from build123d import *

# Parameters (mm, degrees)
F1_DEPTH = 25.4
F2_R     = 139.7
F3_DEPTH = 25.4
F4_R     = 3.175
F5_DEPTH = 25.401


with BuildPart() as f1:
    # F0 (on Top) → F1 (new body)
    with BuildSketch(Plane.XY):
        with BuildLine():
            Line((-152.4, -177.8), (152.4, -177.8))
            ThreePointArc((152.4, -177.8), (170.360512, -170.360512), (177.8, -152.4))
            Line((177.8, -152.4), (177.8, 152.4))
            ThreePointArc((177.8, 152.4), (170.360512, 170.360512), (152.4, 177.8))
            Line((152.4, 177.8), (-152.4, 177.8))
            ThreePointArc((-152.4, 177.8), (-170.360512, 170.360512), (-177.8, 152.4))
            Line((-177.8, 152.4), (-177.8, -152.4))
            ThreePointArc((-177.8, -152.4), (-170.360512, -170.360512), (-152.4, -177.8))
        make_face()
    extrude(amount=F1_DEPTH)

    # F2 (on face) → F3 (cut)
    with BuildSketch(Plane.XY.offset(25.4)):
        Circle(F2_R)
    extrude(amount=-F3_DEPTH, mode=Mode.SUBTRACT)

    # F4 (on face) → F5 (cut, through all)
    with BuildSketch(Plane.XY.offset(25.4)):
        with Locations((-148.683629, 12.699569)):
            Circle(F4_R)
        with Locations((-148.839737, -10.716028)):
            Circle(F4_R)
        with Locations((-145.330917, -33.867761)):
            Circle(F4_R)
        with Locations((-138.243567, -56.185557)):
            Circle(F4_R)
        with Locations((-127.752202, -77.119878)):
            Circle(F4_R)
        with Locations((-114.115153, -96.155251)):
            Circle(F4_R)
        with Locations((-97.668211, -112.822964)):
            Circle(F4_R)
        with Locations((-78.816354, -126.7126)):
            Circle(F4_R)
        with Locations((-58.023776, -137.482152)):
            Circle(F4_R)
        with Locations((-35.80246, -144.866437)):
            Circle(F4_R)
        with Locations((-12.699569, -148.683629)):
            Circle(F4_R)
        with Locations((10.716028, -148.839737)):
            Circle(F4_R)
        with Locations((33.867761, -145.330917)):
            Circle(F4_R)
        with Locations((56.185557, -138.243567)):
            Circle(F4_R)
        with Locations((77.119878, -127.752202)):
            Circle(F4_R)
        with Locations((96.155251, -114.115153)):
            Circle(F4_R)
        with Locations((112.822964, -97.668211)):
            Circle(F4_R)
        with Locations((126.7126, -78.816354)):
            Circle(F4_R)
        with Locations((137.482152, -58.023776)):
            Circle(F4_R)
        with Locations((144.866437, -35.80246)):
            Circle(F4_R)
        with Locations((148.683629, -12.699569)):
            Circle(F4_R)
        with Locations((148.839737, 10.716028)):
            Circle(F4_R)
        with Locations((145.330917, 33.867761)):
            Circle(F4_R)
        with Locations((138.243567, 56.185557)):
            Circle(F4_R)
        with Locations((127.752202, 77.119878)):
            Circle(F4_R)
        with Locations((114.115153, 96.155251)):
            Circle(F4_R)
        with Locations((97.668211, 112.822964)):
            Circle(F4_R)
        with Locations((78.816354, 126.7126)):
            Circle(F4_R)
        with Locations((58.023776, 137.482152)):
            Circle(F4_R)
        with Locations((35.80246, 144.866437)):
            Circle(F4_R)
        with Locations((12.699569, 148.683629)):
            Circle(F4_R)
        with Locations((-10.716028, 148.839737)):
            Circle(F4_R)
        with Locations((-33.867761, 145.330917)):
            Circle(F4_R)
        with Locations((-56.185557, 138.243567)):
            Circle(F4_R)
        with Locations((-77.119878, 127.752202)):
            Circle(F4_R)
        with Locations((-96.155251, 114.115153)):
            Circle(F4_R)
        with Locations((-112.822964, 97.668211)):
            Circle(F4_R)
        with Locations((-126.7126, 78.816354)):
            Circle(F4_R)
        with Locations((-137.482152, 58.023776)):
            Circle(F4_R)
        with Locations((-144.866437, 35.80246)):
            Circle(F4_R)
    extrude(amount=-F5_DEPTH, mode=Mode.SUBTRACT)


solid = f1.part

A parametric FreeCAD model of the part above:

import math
import FreeCAD as App
import Part
import Sketcher
Q = App.Units.Quantity

doc = App.newDocument("Part")
params = doc.addObject("Spreadsheet::Sheet", "Params")
for row, (alias, value) in enumerate([
    ("sketch1_radius", "1 in"),
    ("sketch1_width", "12 in"),
    ("pad1_length", "1 in"),
    ("sketch2_diameter", "11 in"),
    ("pocket1_length", "1 in"),
    ("sketch3_diameter", "0.25 in"),
], start=1):
    params.set(f"A{row}", alias)
    params.set(f"B{row}", "=" + value)
    params.setAlias(f"B{row}", alias)

body = doc.addObject("PartDesign::Body", "Body")

# Sketch on XY plane
sketch1 = body.newObject("Sketcher::SketchObject", "Sketch")
sketch1.AttachmentSupport = (doc.getObject("XY_Plane"), [""])
sketch1.MapMode = "FlatFace"
sketch1.addGeometry([
    Part.LineSegment(App.Vector(-152, -178, 0), App.Vector(152, -178, 0)),  # 0
    Part.ArcOfCircle(Part.Circle(App.Vector(152, -152, 0), App.Vector(0, 0, 1), 25), math.radians(-90), math.radians(0)),  # 1
    Part.LineSegment(App.Vector(178, -152, 0), App.Vector(178, 152, 0)),  # 2
    Part.ArcOfCircle(Part.Circle(App.Vector(152, 152, 0), App.Vector(0, 0, 1), 25), math.radians(0), math.radians(90)),  # 3
    Part.LineSegment(App.Vector(152, 178, 0), App.Vector(-152, 178, 0)),  # 4
    Part.ArcOfCircle(Part.Circle(App.Vector(-152, 152, 0), App.Vector(0, 0, 1), 25), math.radians(90), math.radians(180)),  # 5
    Part.LineSegment(App.Vector(-178, 152, 0), App.Vector(-178, -152, 0)),  # 6
    Part.ArcOfCircle(Part.Circle(App.Vector(-152, -152, 0), App.Vector(0, 0, 1), 25), math.radians(-180), math.radians(-90)),  # 7
], False)
sketch1.addConstraint([
    Sketcher.Constraint("Tangent", 0, 2, 1, 1),
    Sketcher.Constraint("Tangent", 1, 2, 2, 1),
    Sketcher.Constraint("Tangent", 2, 2, 3, 1),
    Sketcher.Constraint("Tangent", 3, 2, 4, 1),
    Sketcher.Constraint("Tangent", 4, 2, 5, 1),
    Sketcher.Constraint("Tangent", 5, 2, 6, 1),
    Sketcher.Constraint("Tangent", 6, 2, 7, 1),
    Sketcher.Constraint("Tangent", 7, 2, 0, 1),
    Sketcher.Constraint("Horizontal", 0),
    Sketcher.Constraint("Vertical", 2),
    Sketcher.Constraint("Horizontal", 4),
    Sketcher.Constraint("Vertical", 6),
    Sketcher.Constraint("Equal", 1, 3),
    Sketcher.Constraint("Equal", 3, 5),
    Sketcher.Constraint("Equal", 5, 7),
    Sketcher.Constraint("Symmetric", 1, 3, 5, 3, -1, 1),
    Sketcher.Constraint("Equal", 4, 2),
    Sketcher.Constraint("Radius", 1, Q("1 in")),
    Sketcher.Constraint("DistanceX", 0, 1, 0, 2, Q("12 in")),
])
sketch1.setExpression("Constraints[17]", "Params.sketch1_radius")
sketch1.setExpression("Constraints[18]", "Params.sketch1_width")
pad1 = body.newObject("PartDesign::Pad", "Pad")
pad1.Profile = sketch1
pad1.setExpression("Length", "Params.pad1_length")

# Sketch on XY plane
sketch2 = body.newObject("Sketcher::SketchObject", "Sketch001")
sketch2.AttachmentSupport = (doc.getObject("XY_Plane"), [""])
sketch2.MapMode = "FlatFace"
sketch2.AttachmentOffset = App.Placement(App.Vector(0, 0, 1 * 25.4), App.Rotation())
sketch2.addGeometry(Part.Circle(App.Vector(0, 0, 0), App.Vector(0, 0, 1), 140), False)
sketch2.addConstraint([
    Sketcher.Constraint("Coincident", 0, 3, -1, 1),
    Sketcher.Constraint("Diameter", 0, Q("11 in")),
])
sketch2.setExpression("Constraints[1]", "Params.sketch2_diameter")
pocket1 = body.newObject("PartDesign::Pocket", "Pocket")
pocket1.Profile = sketch2
pocket1.setExpression("Length", "Params.pocket1_length")

# Sketch on XY plane
sketch3 = body.newObject("Sketcher::SketchObject", "Sketch002")
sketch3.AttachmentSupport = (doc.getObject("XY_Plane"), [""])
sketch3.MapMode = "FlatFace"
sketch3.AttachmentOffset = App.Placement(App.Vector(0, 0, 1 * 25.4), App.Rotation())
sketch3.addGeometry([
    Part.Circle(App.Vector(-148.7, 12.7, 0), App.Vector(0, 0, 1), 3.2),  # 0
    Part.Circle(App.Vector(-148.8, -10.7, 0), App.Vector(0, 0, 1), 3.2),  # 1
    Part.Circle(App.Vector(-145.3, -33.9, 0), App.Vector(0, 0, 1), 3.2),  # 2
    Part.Circle(App.Vector(-138.2, -56.2, 0), App.Vector(0, 0, 1), 3.2),  # 3
    Part.Circle(App.Vector(-127.8, -77.1, 0), App.Vector(0, 0, 1), 3.2),  # 4
    Part.Circle(App.Vector(-114.1, -96.2, 0), App.Vector(0, 0, 1), 3.2),  # 5
    Part.Circle(App.Vector(-97.7, -112.8, 0), App.Vector(0, 0, 1), 3.2),  # 6
    Part.Circle(App.Vector(-78.8, -126.7, 0), App.Vector(0, 0, 1), 3.2),  # 7
    Part.Circle(App.Vector(-58, -137.5, 0), App.Vector(0, 0, 1), 3.2),  # 8
    Part.Circle(App.Vector(-35.8, -144.9, 0), App.Vector(0, 0, 1), 3.2),  # 9
    Part.Circle(App.Vector(-12.7, -148.7, 0), App.Vector(0, 0, 1), 3.2),  # 10
    Part.Circle(App.Vector(10.7, -148.8, 0), App.Vector(0, 0, 1), 3.2),  # 11
    Part.Circle(App.Vector(33.9, -145.3, 0), App.Vector(0, 0, 1), 3.2),  # 12
    Part.Circle(App.Vector(56.2, -138.2, 0), App.Vector(0, 0, 1), 3.2),  # 13
    Part.Circle(App.Vector(77.1, -127.8, 0), App.Vector(0, 0, 1), 3.2),  # 14
    Part.Circle(App.Vector(96.2, -114.1, 0), App.Vector(0, 0, 1), 3.2),  # 15
    Part.Circle(App.Vector(112.8, -97.7, 0), App.Vector(0, 0, 1), 3.2),  # 16
    Part.Circle(App.Vector(126.7, -78.8, 0), App.Vector(0, 0, 1), 3.2),  # 17
    Part.Circle(App.Vector(137.5, -58, 0), App.Vector(0, 0, 1), 3.2),  # 18
    Part.Circle(App.Vector(144.9, -35.8, 0), App.Vector(0, 0, 1), 3.2),  # 19
    Part.Circle(App.Vector(148.7, -12.7, 0), App.Vector(0, 0, 1), 3.2),  # 20
    Part.Circle(App.Vector(148.8, 10.7, 0), App.Vector(0, 0, 1), 3.2),  # 21
    Part.Circle(App.Vector(145.3, 33.9, 0), App.Vector(0, 0, 1), 3.2),  # 22
    Part.Circle(App.Vector(138.2, 56.2, 0), App.Vector(0, 0, 1), 3.2),  # 23
    Part.Circle(App.Vector(127.8, 77.1, 0), App.Vector(0, 0, 1), 3.2),  # 24
    Part.Circle(App.Vector(114.1, 96.2, 0), App.Vector(0, 0, 1), 3.2),  # 25
    Part.Circle(App.Vector(97.7, 112.8, 0), App.Vector(0, 0, 1), 3.2),  # 26
    Part.Circle(App.Vector(78.8, 126.7, 0), App.Vector(0, 0, 1), 3.2),  # 27
    Part.Circle(App.Vector(58, 137.5, 0), App.Vector(0, 0, 1), 3.2),  # 28
    Part.Circle(App.Vector(35.8, 144.9, 0), App.Vector(0, 0, 1), 3.2),  # 29
    Part.Circle(App.Vector(12.7, 148.7, 0), App.Vector(0, 0, 1), 3.2),  # 30
    Part.Circle(App.Vector(-10.7, 148.8, 0), App.Vector(0, 0, 1), 3.2),  # 31
    Part.Circle(App.Vector(-33.9, 145.3, 0), App.Vector(0, 0, 1), 3.2),  # 32
    Part.Circle(App.Vector(-56.2, 138.2, 0), App.Vector(0, 0, 1), 3.2),  # 33
    Part.Circle(App.Vector(-77.1, 127.8, 0), App.Vector(0, 0, 1), 3.2),  # 34
    Part.Circle(App.Vector(-96.2, 114.1, 0), App.Vector(0, 0, 1), 3.2),  # 35
    Part.Circle(App.Vector(-112.8, 97.7, 0), App.Vector(0, 0, 1), 3.2),  # 36
    Part.Circle(App.Vector(-126.7, 78.8, 0), App.Vector(0, 0, 1), 3.2),  # 37
    Part.Circle(App.Vector(-137.5, 58, 0), App.Vector(0, 0, 1), 3.2),  # 38
    Part.Circle(App.Vector(-144.9, 35.8, 0), App.Vector(0, 0, 1), 3.2),  # 39
], False)
sketch3.addConstraint([
    Sketcher.Constraint("Equal", 0, 1),
    Sketcher.Constraint("Equal", 1, 2),
    Sketcher.Constraint("Equal", 2, 3),
    Sketcher.Constraint("Equal", 3, 4),
    Sketcher.Constraint("Equal", 4, 5),
    Sketcher.Constraint("Equal", 5, 6),
    Sketcher.Constraint("Equal", 6, 7),
    Sketcher.Constraint("Equal", 7, 8),
    Sketcher.Constraint("Equal", 8, 9),
    Sketcher.Constraint("Equal", 9, 10),
    Sketcher.Constraint("Equal", 10, 11),
    Sketcher.Constraint("Equal", 11, 12),
    Sketcher.Constraint("Equal", 12, 13),
    Sketcher.Constraint("Equal", 13, 14),
    Sketcher.Constraint("Equal", 14, 15),
    Sketcher.Constraint("Equal", 15, 16),
    Sketcher.Constraint("Equal", 16, 17),
    Sketcher.Constraint("Equal", 17, 18),
    Sketcher.Constraint("Equal", 18, 19),
    Sketcher.Constraint("Equal", 19, 20),
    Sketcher.Constraint("Equal", 20, 21),
    Sketcher.Constraint("Equal", 21, 22),
    Sketcher.Constraint("Equal", 22, 23),
    Sketcher.Constraint("Equal", 23, 24),
    Sketcher.Constraint("Equal", 24, 25),
    Sketcher.Constraint("Equal", 25, 26),
    Sketcher.Constraint("Equal", 26, 27),
    Sketcher.Constraint("Equal", 27, 28),
    Sketcher.Constraint("Equal", 28, 29),
    Sketcher.Constraint("Equal", 29, 30),
    Sketcher.Constraint("Equal", 30, 31),
    Sketcher.Constraint("Equal", 31, 32),
    Sketcher.Constraint("Equal", 32, 33),
    Sketcher.Constraint("Equal", 33, 34),
    Sketcher.Constraint("Equal", 34, 35),
    Sketcher.Constraint("Equal", 35, 36),
    Sketcher.Constraint("Equal", 36, 37),
    Sketcher.Constraint("Equal", 37, 38),
    Sketcher.Constraint("Equal", 38, 39),
    Sketcher.Constraint("Symmetric", 0, 3, 20, 3, -1, 1),
    Sketcher.Constraint("Symmetric", 1, 3, 21, 3, -1, 1),
    Sketcher.Constraint("Symmetric", 2, 3, 22, 3, -1, 1),
    Sketcher.Constraint("Symmetric", 3, 3, 23, 3, -1, 1),
    Sketcher.Constraint("Symmetric", 4, 3, 24, 3, -1, 1),
    Sketcher.Constraint("Symmetric", 5, 3, 25, 3, -1, 1),
    Sketcher.Constraint("Symmetric", 6, 3, 26, 3, -1, 1),
    Sketcher.Constraint("Symmetric", 7, 3, 27, 3, -1, 1),
    Sketcher.Constraint("Symmetric", 8, 3, 28, 3, -1, 1),
    Sketcher.Constraint("Symmetric", 9, 3, 29, 3, -1, 1),
    Sketcher.Constraint("Symmetric", 10, 3, 30, 3, -1, 1),
    Sketcher.Constraint("Symmetric", 11, 3, 31, 3, -1, 1),
    Sketcher.Constraint("Symmetric", 12, 3, 32, 3, -1, 1),
    Sketcher.Constraint("Symmetric", 13, 3, 33, 3, -1, 1),
    Sketcher.Constraint("Symmetric", 14, 3, 34, 3, -1, 1),
    Sketcher.Constraint("Symmetric", 15, 3, 35, 3, -1, 1),
    Sketcher.Constraint("Symmetric", 16, 3, 36, 3, -1, 1),
    Sketcher.Constraint("Symmetric", 17, 3, 37, 3, -1, 1),
    Sketcher.Constraint("Symmetric", 18, 3, 38, 3, -1, 1),
    Sketcher.Constraint("Symmetric", 19, 3, 39, 3, -1, 1),
    Sketcher.Constraint("Diameter", 0, Q("0.25 in")),
    Sketcher.Constraint("DistanceX", 4, 3, -1, 1, 127.752202),
    Sketcher.Constraint("DistanceY", 7, 3, -1, 1, 126.7126),
    Sketcher.Constraint("DistanceY", 14, 3, -1, 1, 127.752202),
    Sketcher.Constraint("DistanceX", -1, 1, 17, 3, 126.7126),
    Sketcher.Constraint("DistanceX", 5, 3, 7, 3, 35.298799),
    Sketcher.Constraint("DistanceY", 8, 3, 5, 3, 41.326901),
    Sketcher.Constraint("DistanceY", 11, 3, 9, 3, 3.9733),
    Sketcher.Constraint("DistanceY", 15, 3, 17, 3, 35.298799),
    Sketcher.Constraint("DistanceX", 15, 3, 18, 3, 41.326901),
    Sketcher.Constraint("DistanceX", 19, 3, 21, 3, 3.9733),
    Sketcher.Constraint("DistanceX", 0, 3, -1, 1, 148.683629),
    Sketcher.Constraint("DistanceY", -1, 1, 0, 3, 12.699569),
    Sketcher.Constraint("DistanceY", 2, 3, -1, 1, 33.867761),
    Sketcher.Constraint("DistanceY", 4, 3, -1, 1, 77.119878),
    Sketcher.Constraint("DistanceY", 5, 3, -1, 1, 96.155251),
    Sketcher.Constraint("DistanceX", 6, 3, -1, 1, 97.668211),
    Sketcher.Constraint("DistanceX", 9, 3, -1, 1, 35.80246),
    Sketcher.Constraint("DistanceX", 10, 3, -1, 1, 12.699569),
    Sketcher.Constraint("DistanceY", 10, 3, -1, 1, 148.683629),
    Sketcher.Constraint("DistanceX", -1, 1, 12, 3, 33.867761),
    Sketcher.Constraint("DistanceX", -1, 1, 14, 3, 77.119878),
    Sketcher.Constraint("DistanceX", -1, 1, 15, 3, 96.155251),
    Sketcher.Constraint("DistanceY", 16, 3, -1, 1, 97.668211),
    Sketcher.Constraint("DistanceY", 19, 3, -1, 1, 35.80246),
    Sketcher.Constraint("DistanceX", 1, 3, 0, 3, 0.156108),
    Sketcher.Constraint("DistanceX", 1, 3, 2, 3, 3.50882),
    Sketcher.Constraint("DistanceX", 2, 3, 3, 3, 7.08735),
    Sketcher.Constraint("DistanceY", 3, 3, 1, 3, 45.469529),
    Sketcher.Constraint("DistanceY", 4, 3, 3, 3, 20.934321),
    Sketcher.Constraint("DistanceX", 4, 3, 5, 3, 13.637049),
    Sketcher.Constraint("DistanceX", 7, 3, 8, 3, 20.792578),
    Sketcher.Constraint("DistanceY", 8, 3, 6, 3, 24.659188),
    Sketcher.Constraint("DistanceY", 9, 3, 4, 3, 67.746559),
    Sketcher.Constraint("DistanceX", 9, 3, 11, 3, 46.518488),
    Sketcher.Constraint("DistanceY", 11, 3, 12, 3, 3.50882),
    Sketcher.Constraint("DistanceY", 12, 3, 13, 3, 7.08735),
    Sketcher.Constraint("DistanceX", 11, 3, 13, 3, 45.469529),
    Sketcher.Constraint("DistanceY", 14, 3, 15, 3, 13.637049),
    Sketcher.Constraint("DistanceY", 17, 3, 18, 3, 20.792578),
    Sketcher.Constraint("DistanceX", 16, 3, 18, 3, 24.659188),
])
sketch3.setExpression("Constraints[59]", "Params.sketch3_diameter")
pocket2 = body.newObject("PartDesign::Pocket", "Pocket001")
pocket2.Profile = sketch3
pocket2.Type = "ThroughAll"

doc.recompute()
